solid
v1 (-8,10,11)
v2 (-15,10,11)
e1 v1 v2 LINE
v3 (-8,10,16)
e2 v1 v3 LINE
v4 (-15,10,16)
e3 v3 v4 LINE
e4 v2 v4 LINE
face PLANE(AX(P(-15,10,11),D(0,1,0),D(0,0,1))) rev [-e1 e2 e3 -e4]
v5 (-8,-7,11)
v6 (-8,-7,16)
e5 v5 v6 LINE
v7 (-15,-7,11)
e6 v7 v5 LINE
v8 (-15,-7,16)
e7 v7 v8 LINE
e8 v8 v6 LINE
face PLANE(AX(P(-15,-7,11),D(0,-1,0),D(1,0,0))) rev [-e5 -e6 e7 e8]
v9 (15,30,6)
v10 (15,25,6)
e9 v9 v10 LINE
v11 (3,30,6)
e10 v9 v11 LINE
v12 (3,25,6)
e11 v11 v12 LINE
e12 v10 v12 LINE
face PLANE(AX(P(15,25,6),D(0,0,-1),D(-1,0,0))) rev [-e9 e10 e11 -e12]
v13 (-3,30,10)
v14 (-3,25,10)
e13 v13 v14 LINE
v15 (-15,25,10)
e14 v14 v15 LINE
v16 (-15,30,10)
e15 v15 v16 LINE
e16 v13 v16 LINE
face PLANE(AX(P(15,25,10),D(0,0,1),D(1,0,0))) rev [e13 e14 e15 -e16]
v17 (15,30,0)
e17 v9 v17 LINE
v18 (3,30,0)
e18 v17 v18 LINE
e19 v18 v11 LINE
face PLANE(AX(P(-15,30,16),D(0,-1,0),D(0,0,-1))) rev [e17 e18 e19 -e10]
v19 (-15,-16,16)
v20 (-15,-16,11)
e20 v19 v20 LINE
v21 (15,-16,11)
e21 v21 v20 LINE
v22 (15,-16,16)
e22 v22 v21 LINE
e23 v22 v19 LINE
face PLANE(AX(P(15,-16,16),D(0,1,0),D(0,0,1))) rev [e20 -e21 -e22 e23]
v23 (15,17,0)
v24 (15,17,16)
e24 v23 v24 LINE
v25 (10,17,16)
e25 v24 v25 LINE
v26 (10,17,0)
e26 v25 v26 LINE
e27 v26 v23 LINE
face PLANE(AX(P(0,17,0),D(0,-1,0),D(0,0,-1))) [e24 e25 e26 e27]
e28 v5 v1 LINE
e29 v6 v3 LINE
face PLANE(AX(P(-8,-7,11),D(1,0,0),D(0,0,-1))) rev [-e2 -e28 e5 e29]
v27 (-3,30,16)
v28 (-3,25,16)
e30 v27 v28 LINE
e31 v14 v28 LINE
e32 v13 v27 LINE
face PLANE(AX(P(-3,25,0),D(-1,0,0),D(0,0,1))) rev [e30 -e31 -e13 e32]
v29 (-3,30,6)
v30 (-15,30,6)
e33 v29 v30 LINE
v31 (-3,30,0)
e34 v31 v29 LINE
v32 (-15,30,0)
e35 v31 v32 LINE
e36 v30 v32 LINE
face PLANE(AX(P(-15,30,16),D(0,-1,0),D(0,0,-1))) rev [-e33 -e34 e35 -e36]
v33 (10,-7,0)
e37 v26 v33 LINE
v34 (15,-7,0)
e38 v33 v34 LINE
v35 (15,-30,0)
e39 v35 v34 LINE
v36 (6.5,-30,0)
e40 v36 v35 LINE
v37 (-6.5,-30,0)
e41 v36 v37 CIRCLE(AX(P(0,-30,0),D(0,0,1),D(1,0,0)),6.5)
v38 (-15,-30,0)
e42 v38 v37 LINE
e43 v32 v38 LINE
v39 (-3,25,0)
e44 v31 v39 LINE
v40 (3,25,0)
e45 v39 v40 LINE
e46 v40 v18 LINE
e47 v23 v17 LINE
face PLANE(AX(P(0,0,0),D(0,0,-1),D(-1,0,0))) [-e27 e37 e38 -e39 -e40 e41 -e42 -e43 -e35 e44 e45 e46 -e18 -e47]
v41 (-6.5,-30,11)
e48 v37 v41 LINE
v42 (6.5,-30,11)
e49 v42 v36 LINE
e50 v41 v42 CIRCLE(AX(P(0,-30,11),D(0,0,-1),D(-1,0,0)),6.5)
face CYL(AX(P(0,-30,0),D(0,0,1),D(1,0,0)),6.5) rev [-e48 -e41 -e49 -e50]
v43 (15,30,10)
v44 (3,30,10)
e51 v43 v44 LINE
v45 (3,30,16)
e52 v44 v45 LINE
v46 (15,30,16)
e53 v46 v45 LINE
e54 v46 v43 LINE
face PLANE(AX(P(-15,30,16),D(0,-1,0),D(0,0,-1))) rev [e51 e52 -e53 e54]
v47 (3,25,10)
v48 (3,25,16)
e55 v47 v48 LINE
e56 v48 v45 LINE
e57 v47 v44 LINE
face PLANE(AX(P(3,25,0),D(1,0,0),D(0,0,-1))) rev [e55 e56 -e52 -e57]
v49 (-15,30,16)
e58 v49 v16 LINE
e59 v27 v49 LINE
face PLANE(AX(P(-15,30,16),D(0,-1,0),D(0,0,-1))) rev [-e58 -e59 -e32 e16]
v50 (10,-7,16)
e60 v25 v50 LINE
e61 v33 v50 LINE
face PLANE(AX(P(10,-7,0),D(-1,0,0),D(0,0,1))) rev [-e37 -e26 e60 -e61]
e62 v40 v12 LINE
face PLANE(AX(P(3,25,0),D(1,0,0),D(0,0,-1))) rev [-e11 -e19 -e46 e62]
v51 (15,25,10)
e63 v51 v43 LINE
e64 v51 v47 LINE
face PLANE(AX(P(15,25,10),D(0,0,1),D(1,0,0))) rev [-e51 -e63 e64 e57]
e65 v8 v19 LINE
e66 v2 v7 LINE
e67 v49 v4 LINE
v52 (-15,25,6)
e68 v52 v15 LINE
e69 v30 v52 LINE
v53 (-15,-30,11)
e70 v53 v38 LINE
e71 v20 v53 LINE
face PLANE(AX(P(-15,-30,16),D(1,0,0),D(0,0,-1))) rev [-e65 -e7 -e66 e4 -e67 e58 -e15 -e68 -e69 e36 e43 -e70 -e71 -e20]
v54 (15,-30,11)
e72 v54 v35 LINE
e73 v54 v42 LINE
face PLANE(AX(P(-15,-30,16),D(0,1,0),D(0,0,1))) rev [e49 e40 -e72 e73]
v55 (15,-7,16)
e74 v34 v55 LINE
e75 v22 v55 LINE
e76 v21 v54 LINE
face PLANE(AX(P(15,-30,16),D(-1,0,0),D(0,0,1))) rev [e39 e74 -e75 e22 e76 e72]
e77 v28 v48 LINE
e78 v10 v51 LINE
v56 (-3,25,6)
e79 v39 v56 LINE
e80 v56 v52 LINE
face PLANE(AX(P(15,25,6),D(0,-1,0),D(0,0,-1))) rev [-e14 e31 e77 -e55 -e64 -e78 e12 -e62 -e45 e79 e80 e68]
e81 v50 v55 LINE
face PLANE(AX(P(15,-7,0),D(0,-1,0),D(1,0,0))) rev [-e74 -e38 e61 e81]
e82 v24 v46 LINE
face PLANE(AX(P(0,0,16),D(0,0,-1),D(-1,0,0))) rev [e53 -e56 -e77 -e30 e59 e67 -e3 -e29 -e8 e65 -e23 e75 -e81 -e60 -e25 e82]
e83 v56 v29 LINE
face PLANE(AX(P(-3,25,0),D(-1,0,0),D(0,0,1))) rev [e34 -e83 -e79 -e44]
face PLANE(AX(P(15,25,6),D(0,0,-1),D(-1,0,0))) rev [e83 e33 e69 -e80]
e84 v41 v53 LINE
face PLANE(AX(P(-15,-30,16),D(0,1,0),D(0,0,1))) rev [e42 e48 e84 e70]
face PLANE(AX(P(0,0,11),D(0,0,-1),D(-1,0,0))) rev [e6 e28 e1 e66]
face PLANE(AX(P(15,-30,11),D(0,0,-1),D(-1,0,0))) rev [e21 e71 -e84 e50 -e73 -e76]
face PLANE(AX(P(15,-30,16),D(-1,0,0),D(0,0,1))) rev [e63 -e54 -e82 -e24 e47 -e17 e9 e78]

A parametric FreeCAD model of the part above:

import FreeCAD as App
import Part
import Sketcher


def add_polygon(sketch, points):
    """Adds a closed chain of lines whose ends are joined by coincident constraints."""
    first, n = sketch.GeometryCount, len(points)
    for a, b in zip(points, points[1:] + points[:1]):
        sketch.addGeometry(Part.LineSegment(App.Vector(*a, 0), App.Vector(*b, 0)), False)
    for i in range(n):
        sketch.addConstraint(Sketcher.Constraint("Coincident", first + i, 2, first + (i + 1) % n, 1))

doc = App.newDocument("Part")
body = doc.addObject("PartDesign::Body", "Body")

# Sketch on XY plane
sketch1 = body.newObject("Sketcher::SketchObject", "Sketch")
sketch1.AttachmentSupport = (doc.getObject("XY_Plane"), [""])
sketch1.MapMode = "FlatFace"
add_polygon(sketch1, [(-15, 30), (-15, -30), (15, -30), (15, 30)])  # lines 0-3
sketch1.addConstraint(Sketcher.Constraint("Vertical", 0))
sketch1.addConstraint(Sketcher.Constraint("Horizontal", 1))
sketch1.addConstraint(Sketcher.Constraint("Vertical", 2))
sketch1.addConstraint(Sketcher.Constraint("Horizontal", 3))
sketch1.addConstraint(Sketcher.Constraint("Symmetric", 0, 2, 2, 2, -1, 1))
sketch1.addConstraint(Sketcher.Constraint("DistanceX", 1, 1, 1, 2, 30.0))
sketch1.addConstraint(Sketcher.Constraint("DistanceY", 0, 2, 0, 1, 60.0))
pad1 = body.newObject("PartDesign::Pad", "Pad")
pad1.Profile = sketch1
pad1.Length = 16

# Sketch on YZ plane
sketch2 = body.newObject("Sketcher::SketchObject", "Sketch001")
sketch2.AttachmentSupport = (doc.getObject("YZ_Plane"), [""])
sketch2.MapMode = "FlatFace"
sketch2.AttachmentOffset = App.Placement(App.Vector(0, 0, -15), App.Rotation())
add_polygon(sketch2, [(30, 6), (25, 6), (25, 10), (30, 10)])  # lines 0-3
add_polygon(sketch2, [(-16, 11), (-30, 11), (-30, 16), (-16, 16)])  # lines 4-7
sketch2.addConstraint(Sketcher.Constraint("Horizontal", 0))
sketch2.addConstraint(Sketcher.Constraint("Vertical", 1))
sketch2.addConstraint(Sketcher.Constraint("Horizontal", 2))
sketch2.addConstraint(Sketcher.Constraint("Vertical", 3))
sketch2.addConstraint(Sketcher.Constraint("Horizontal", 4))
sketch2.addConstraint(Sketcher.Constraint("Vertical", 5))
sketch2.addConstraint(Sketcher.Constraint("Horizontal", 6))
sketch2.addConstraint(Sketcher.Constraint("Vertical", 7))
sketch2.addConstraint(Sketcher.Constraint("Equal", 2, 5))
sketch2.addConstraint(Sketcher.Constraint("DistanceX", 0, 2, 0, 1, 5.0))
sketch2.addConstraint(Sketcher.Constraint("DistanceX", 4, 2, 4, 1, 14.0))
sketch2.addConstraint(Sketcher.Constraint("DistanceY", 1, 1, 1, 2, 4.0))
sketch2.addConstraint(Sketcher.Constraint("DistanceX", -1, 1, 0, 2, 25.0))
sketch2.addConstraint(Sketcher.Constraint("DistanceY", -1, 1, 0, 2, 6.0))
sketch2.addConstraint(Sketcher.Constraint("DistanceX", 4, 2, -1, 1, 30.0))
sketch2.addConstraint(Sketcher.Constraint("DistanceY", -1, 1, 4, 2, 11.0))
pocket1 = body.newObject("PartDesign::Pocket", "Pocket")
pocket1.Profile = sketch2
pocket1.Type = "ThroughAll"
pocket1.Reversed = True

# Sketch on XY plane
sketch3 = body.newObject("Sketcher::SketchObject", "Sketch002")
sketch3.AttachmentSupport = (doc.getObject("XY_Plane"), [""])
sketch3.MapMode = "FlatFace"
sketch3.AttachmentOffset = App.Placement(App.Vector(0, 0, 16), App.Rotation())
sketch3.addGeometry(Part.Circle(App.Vector(0, -30, 0), App.Vector(0, 0, 1), 6), False)  # 0
add_polygon(sketch3, [(-3, 30), (-3, 25), (3, 25), (3, 30)])  # lines 1-4
sketch3.addConstraint(Sketcher.Constraint("Vertical", 1))
sketch3.addConstraint(Sketcher.Constraint("Horizontal", 2))
sketch3.addConstraint(Sketcher.Constraint("Vertical", 3))
sketch3.addConstraint(Sketcher.Constraint("Horizontal", 4))
sketch3.addConstraint(Sketcher.Constraint("PointOnObject", 0, 3, -2))
sketch3.addConstraint(Sketcher.Constraint("Diameter", 0, 13.0))
sketch3.addConstraint(Sketcher.Constraint("DistanceX", 2, 1, 2, 2, 6.0))
sketch3.addConstraint(Sketcher.Constraint("DistanceY", 1, 2, 1, 1, 5.0))
sketch3.addConstraint(Sketcher.Constraint("DistanceY", 0, 3, -1, 1, 30.0))
sketch3.addConstraint(Sketcher.Constraint("DistanceX", 1, 2, -1, 1, 3.0))
sketch3.addConstraint(Sketcher.Constraint("DistanceY", -1, 1, 1, 2, 25.0))
pocket2 = body.newObject("PartDesign::Pocket", "Pocket001")
pocket2.Profile = sketch3
pocket2.Type = "ThroughAll"

# Sketch on XY plane
sketch4 = body.newObject("Sketcher::SketchObject", "Sketch003")
sketch4.AttachmentSupport = (doc.getObject("XY_Plane"), [""])
sketch4.MapMode = "FlatFace"
sketch4.AttachmentOffset = App.Placement(App.Vector(0, 0, 16), App.Rotation())
add_polygon(sketch4, [(10, 10), (10, -7), (15, -7), (15, 10)])  # lines 0-3
sketch4.addConstraint(Sketcher.Constraint("Vertical", 0))
sketch4.addConstraint(Sketcher.Constraint("Horizontal", 1))
sketch4.addConstraint(Sketcher.Constraint("Vertical", 2))
sketch4.addConstraint(Sketcher.Constraint("Horizontal", 3))
sketch4.addConstraint(Sketcher.Constraint("DistanceX", 1, 1, 1, 2, 5.0))
sketch4.addConstraint(Sketcher.Constraint("DistanceY", 0, 2, 0, 1, 17.0))
sketch4.addConstraint(Sketcher.Constraint("DistanceX", -1, 1, 0, 2, 10.0))
sketch4.addConstraint(Sketcher.Constraint("DistanceY", 0, 2, -1, 1, 7.0))
pocket3 = body.newObject("PartDesign::Pocket", "Pocket002")
pocket3.Profile = sketch4
pocket3.Type = "ThroughAll"

# Sketch on XY plane
sketch5 = body.newObject("Sketcher::SketchObject", "Sketch004")
sketch5.AttachmentSupport = (doc.getObject("XY_Plane"), [""])
sketch5.MapMode = "FlatFace"
sketch5.AttachmentOffset = App.Placement(App.Vector(0, 0, 16), App.Rotation())
add_polygon(sketch5, [(-15, 10), (-15, -7), (-8, -7), (-8, 10)])  # lines 0-3
sketch5.addConstraint(Sketcher.Constraint("Vertical", 0))
sketch5.addConstraint(Sketcher.Constraint("Horizontal", 1))
sketch5.addConstraint(Sketcher.Constraint("Vertical", 2))
sketch5.addConstraint(Sketcher.Constraint("Horizontal", 3))
sketch5.addConstraint(Sketcher.Constraint("DistanceX", 1, 1, 1, 2, 7.0))
sketch5.addConstraint(Sketcher.Constraint("DistanceY", 0, 2, 0, 1, 17.0))
sketch5.addConstraint(Sketcher.Constraint("DistanceX", 0, 2, -1, 1, 15.0))
sketch5.addConstraint(Sketcher.Constraint("DistanceY", 0, 2, -1, 1, 7.0))
pocket4 = body.newObject("PartDesign::Pocket", "Pocket003")
pocket4.Profile = sketch5
pocket4.Length = 5

# Sketch on XZ plane
sketch6 = body.newObject("Sketcher::SketchObject", "Sketch005")
sketch6.AttachmentSupport = (doc.getObject("XZ_Plane"), [""])
sketch6.MapMode = "FlatFace"
sketch6.AttachmentOffset = App.Placement(App.Vector(0, 0, -10), App.Rotation())
add_polygon(sketch6, [(10, 16), (10, 0), (15, 0), (15, 16)])  # lines 0-3
sketch6.addConstraint(Sketcher.Constraint("Vertical", 0))
sketch6.addConstraint(Sketcher.Constraint("Horizontal", 1))
sketch6.addConstraint(Sketcher.Constraint("Vertical", 2))
sketch6.addConstraint(Sketcher.Constraint("Horizontal", 3))
sketch6.addConstraint(Sketcher.Constraint("PointOnObject", 0, 2, -1))
sketch6.addConstraint(Sketcher.Constraint("DistanceX", 1, 1, 1, 2, 5.0))
sketch6.addConstraint(Sketcher.Constraint("DistanceY", 0, 2, 0, 1, 16.0))
sketch6.addConstraint(Sketcher.Constraint("DistanceX", -1, 1, 0, 2, 10.0))
pocket5 = body.newObject("PartDesign::Pocket", "Pocket004")
pocket5.Profile = sketch6
pocket5.Length = 7

doc.recompute()
